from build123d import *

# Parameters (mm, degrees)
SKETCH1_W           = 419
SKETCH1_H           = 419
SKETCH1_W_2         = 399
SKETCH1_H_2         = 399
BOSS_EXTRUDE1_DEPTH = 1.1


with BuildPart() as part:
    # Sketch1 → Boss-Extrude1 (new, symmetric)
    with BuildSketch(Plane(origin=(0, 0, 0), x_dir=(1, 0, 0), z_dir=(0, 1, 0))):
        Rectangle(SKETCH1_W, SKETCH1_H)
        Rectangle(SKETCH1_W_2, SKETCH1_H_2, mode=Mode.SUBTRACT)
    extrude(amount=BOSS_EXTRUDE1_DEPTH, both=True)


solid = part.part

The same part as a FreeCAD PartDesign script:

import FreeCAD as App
import Part
import Sketcher

V = App.Vector

doc = App.newDocument("Part")
body = doc.addObject("PartDesign::Body", "Body")

# Sketch on XZ plane
sketch1 = body.newObject("Sketcher::SketchObject", "Sketch")
sketch1.AttachmentSupport = (doc.getObject("XZ_Plane"), [""])
sketch1.MapMode = "FlatFace"
sketch1.addGeometry([
    Part.LineSegment(V(-209.5, -209.5, 0), V(-209.5, 209.5, 0)),  # 0
    Part.LineSegment(V(-209.5, 209.5, 0), V(209.5, 209.5, 0)),  # 1
    Part.LineSegment(V(209.5, 209.5, 0), V(209.5, -209.5, 0)),  # 2
    Part.LineSegment(V(209.5, -209.5, 0), V(-209.5, -209.5, 0)),  # 3
    Part.LineSegment(V(199.5, 199.5, 0), V(-199.5, 199.5, 0)),  # 4
    Part.LineSegment(V(-199.5, 199.5, 0), V(-199.5, -199.5, 0)),  # 5
    Part.LineSegment(V(-199.5, -199.5, 0), V(199.5, -199.5, 0)),  # 6
    Part.LineSegment(V(199.5, -199.5, 0), V(199.5, 199.5, 0)),  # 7
], False)
sketch1.addConstraint([
    Sketcher.Constraint("Coincident", 0, 2, 1, 1),
    Sketcher.Constraint("Coincident", 1, 2, 2, 1),
    Sketcher.Constraint("Coincident", 2, 2, 3, 1),
    Sketcher.Constraint("Coincident", 3, 2, 0, 1),
    Sketcher.Constraint("Coincident", 4, 2, 5, 1),
    Sketcher.Constraint("Coincident", 5, 2, 6, 1),
    Sketcher.Constraint("Coincident", 6, 2, 7, 1),
    Sketcher.Constraint("Coincident", 7, 2, 4, 1),
    Sketcher.Constraint("Vertical", 0),
    Sketcher.Constraint("Horizontal", 1),
    Sketcher.Constraint("Vertical", 2),
    Sketcher.Constraint("Horizontal", 3),
    Sketcher.Constraint("Horizontal", 4),
    Sketcher.Constraint("Vertical", 5),
    Sketcher.Constraint("Horizontal", 6),
    Sketcher.Constraint("Vertical", 7),
    Sketcher.Constraint("Symmetric", 0, 2, 2, 2, -1, 1),
    Sketcher.Constraint("Symmetric", 4, 2, 6, 2, -1, 1),
    Sketcher.Constraint("Equal", 3, 0),
    Sketcher.Constraint("Equal", 6, 5),
    Sketcher.Constraint("DistanceX", 1, 1, 1, 2, 419.0),
    Sketcher.Constraint("DistanceX", 4, 2, 4, 1, 399.0),
])
pad1 = body.newObject("PartDesign::Pad", "Pad")
pad1.Profile = sketch1
pad1.Length = 2.2
pad1.Midplane = True

doc.recompute()
